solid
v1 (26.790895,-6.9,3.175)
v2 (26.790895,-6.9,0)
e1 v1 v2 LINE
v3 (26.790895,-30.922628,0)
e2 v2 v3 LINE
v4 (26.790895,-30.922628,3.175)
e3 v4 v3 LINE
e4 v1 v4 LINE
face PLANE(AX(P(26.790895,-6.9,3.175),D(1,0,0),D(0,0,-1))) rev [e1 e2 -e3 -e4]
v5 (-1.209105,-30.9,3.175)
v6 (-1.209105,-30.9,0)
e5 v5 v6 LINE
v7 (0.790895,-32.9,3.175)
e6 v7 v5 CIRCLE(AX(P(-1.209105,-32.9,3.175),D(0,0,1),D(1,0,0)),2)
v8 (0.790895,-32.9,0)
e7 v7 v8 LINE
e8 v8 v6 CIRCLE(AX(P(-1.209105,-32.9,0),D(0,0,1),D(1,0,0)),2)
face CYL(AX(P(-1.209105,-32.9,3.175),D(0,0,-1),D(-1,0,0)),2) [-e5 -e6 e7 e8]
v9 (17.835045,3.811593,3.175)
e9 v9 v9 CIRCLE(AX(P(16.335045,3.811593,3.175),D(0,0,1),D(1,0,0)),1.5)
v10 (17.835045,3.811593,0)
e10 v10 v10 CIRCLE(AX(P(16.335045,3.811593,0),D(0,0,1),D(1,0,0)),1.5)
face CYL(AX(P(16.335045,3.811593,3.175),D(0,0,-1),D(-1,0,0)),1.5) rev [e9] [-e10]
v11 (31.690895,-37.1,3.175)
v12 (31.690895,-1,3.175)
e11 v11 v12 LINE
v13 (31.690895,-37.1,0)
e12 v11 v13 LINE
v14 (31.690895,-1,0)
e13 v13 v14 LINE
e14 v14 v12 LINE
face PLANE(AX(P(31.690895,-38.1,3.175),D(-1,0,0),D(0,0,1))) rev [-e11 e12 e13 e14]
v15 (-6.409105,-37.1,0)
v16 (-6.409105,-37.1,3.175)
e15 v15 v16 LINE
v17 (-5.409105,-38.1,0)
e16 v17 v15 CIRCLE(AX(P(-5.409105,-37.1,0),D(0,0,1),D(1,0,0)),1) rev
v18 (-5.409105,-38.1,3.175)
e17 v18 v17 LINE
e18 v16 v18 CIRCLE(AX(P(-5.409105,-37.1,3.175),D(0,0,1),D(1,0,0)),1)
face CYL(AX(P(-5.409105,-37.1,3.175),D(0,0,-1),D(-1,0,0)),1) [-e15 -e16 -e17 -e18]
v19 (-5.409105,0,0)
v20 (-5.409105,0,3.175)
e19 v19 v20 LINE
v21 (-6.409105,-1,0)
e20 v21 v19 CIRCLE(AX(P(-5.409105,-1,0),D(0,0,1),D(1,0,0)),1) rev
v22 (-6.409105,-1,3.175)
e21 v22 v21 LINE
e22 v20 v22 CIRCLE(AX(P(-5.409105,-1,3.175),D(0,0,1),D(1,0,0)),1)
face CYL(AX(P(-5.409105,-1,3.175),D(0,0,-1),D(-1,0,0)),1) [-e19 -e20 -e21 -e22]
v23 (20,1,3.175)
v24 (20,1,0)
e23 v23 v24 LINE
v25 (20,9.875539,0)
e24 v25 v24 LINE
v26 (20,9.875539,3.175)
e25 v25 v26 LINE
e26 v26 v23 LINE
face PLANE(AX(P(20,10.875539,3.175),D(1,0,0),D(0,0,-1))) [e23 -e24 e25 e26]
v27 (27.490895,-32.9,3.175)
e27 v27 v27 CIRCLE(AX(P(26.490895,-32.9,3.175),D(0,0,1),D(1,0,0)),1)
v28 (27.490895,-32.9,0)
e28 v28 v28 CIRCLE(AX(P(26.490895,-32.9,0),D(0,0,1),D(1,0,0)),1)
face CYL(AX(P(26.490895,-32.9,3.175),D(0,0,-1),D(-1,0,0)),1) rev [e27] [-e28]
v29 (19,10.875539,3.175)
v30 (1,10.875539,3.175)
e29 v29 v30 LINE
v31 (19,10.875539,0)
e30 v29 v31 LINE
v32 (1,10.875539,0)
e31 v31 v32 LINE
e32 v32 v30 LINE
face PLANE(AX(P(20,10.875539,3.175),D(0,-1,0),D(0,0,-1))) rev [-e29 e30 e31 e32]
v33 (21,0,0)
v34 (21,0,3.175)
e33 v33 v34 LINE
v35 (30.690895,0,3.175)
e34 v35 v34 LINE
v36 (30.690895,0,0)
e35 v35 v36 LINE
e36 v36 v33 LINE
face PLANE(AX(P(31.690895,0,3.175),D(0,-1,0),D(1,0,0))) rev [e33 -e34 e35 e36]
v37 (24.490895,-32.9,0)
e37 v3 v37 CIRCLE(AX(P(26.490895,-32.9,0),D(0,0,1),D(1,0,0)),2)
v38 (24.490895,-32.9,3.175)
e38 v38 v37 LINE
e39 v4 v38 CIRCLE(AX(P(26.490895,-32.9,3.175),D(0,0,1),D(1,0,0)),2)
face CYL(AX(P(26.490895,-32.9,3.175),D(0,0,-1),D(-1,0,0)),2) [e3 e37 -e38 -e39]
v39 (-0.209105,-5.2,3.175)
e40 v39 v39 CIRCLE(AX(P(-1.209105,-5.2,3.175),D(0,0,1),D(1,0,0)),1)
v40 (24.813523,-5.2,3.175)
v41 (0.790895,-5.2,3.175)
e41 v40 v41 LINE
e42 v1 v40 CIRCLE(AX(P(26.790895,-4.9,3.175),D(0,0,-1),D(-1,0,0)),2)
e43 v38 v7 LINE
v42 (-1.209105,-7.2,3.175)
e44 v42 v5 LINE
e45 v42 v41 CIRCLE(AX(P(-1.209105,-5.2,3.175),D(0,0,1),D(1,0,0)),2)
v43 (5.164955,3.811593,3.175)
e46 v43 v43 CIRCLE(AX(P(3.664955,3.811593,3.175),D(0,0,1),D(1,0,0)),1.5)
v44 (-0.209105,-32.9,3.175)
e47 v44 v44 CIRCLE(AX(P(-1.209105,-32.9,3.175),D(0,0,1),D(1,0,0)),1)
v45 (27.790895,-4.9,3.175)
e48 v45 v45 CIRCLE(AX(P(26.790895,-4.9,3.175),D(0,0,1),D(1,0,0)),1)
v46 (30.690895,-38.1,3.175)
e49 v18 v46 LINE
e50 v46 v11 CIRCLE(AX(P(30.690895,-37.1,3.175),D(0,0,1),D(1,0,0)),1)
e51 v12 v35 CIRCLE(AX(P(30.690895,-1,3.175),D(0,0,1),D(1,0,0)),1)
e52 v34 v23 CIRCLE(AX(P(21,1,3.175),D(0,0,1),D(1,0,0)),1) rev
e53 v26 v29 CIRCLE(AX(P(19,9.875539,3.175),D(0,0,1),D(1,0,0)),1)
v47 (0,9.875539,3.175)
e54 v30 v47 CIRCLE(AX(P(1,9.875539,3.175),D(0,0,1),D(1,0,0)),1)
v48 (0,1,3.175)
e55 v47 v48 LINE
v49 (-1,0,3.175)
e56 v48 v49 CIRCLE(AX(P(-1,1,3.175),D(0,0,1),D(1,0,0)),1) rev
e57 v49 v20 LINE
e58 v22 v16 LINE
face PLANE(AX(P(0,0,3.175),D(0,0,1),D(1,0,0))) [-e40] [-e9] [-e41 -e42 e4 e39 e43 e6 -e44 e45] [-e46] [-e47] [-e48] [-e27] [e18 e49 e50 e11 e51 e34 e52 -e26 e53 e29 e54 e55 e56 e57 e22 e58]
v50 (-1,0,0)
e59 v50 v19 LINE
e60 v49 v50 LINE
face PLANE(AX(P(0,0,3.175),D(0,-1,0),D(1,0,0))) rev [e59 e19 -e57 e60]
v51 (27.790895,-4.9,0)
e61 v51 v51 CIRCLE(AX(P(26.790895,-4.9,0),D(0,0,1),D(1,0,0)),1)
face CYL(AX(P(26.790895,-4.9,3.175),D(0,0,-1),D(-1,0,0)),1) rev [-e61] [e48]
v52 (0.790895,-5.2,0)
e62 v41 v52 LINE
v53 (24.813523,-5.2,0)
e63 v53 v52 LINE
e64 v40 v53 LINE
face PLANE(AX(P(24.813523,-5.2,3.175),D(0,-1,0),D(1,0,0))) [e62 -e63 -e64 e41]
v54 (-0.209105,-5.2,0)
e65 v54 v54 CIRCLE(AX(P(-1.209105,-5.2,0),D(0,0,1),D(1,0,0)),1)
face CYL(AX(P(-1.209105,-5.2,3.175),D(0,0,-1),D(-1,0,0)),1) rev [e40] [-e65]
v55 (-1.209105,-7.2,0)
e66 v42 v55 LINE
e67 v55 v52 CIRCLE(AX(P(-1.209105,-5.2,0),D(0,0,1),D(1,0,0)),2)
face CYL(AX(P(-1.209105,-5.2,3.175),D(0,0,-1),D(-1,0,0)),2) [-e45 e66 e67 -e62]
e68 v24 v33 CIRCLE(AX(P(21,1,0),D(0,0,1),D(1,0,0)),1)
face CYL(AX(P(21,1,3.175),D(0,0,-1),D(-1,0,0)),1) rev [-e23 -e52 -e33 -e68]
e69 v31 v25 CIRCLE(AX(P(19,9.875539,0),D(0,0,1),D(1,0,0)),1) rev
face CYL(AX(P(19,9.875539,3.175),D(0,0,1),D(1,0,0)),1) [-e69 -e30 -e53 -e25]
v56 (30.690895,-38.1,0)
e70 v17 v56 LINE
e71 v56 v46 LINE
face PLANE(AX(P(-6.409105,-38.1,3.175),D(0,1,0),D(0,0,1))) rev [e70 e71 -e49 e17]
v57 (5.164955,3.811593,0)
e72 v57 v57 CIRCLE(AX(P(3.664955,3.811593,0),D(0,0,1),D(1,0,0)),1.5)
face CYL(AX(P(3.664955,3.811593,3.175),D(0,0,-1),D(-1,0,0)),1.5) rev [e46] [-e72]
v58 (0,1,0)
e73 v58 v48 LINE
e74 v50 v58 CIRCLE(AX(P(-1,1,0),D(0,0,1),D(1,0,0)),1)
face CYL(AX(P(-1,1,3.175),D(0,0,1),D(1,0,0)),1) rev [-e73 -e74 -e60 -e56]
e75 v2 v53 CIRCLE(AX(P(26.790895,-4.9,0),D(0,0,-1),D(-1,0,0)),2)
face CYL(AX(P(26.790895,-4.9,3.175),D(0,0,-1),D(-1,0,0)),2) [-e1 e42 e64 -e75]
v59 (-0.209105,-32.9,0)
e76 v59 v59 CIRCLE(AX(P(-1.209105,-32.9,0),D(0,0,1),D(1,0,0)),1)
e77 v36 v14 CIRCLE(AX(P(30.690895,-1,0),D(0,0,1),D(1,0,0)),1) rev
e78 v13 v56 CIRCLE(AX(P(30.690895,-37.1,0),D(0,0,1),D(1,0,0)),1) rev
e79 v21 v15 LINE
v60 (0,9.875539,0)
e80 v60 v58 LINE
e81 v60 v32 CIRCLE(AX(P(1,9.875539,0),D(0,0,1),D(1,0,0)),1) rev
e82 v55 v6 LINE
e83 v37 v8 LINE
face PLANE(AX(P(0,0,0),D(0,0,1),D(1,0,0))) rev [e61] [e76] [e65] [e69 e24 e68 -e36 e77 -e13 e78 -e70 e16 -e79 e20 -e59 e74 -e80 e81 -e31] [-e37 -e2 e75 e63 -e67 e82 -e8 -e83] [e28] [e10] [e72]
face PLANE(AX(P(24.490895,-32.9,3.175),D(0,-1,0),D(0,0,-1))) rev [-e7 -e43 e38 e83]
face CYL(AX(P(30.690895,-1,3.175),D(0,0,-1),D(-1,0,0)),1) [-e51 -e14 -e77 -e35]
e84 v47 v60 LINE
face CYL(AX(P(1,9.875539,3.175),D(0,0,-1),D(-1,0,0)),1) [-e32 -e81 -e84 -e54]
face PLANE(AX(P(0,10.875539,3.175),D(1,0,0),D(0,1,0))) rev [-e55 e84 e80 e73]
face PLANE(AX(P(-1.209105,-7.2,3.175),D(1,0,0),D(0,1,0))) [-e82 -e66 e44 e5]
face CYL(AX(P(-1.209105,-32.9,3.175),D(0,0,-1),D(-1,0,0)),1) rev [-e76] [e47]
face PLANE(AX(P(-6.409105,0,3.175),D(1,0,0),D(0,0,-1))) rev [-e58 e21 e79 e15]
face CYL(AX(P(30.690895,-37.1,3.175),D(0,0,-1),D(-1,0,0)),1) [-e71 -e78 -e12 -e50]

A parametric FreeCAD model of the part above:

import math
import FreeCAD as App
import Part
import Sketcher


def edges_at(feature, points):
    """Names of the edges that pass closest to the given points."""
    edges = feature.Shape.Edges
    near = lambda p: min(range(len(edges)), key=lambda i: edges[i].distToShape(Part.Vertex(*p))[0])
    return sorted({f"Edge{near(p) + 1}" for p in points})


def add_polygon(sketch, points):
    """Adds a closed chain of lines whose ends are joined by coincident constraints."""
    first, n = sketch.GeometryCount, len(points)
    for a, b in zip(points, points[1:] + points[:1]):
        sketch.addGeometry(Part.LineSegment(App.Vector(*a, 0), App.Vector(*b, 0)), False)
    for i in range(n):
        sketch.addConstraint(Sketcher.Constraint("Coincident", first + i, 2, first + (i + 1) % n, 1))

doc = App.newDocument("Part")
body = doc.addObject("PartDesign::Body", "Body")

sketch1 = body.newObject("Sketcher::SketchObject", "Sketch")
sketch1.AttachmentSupport = (doc.getObject("XY_Plane"), [""])
sketch1.MapMode = "FlatFace"
add_polygon(sketch1, [(31.690895, -38.1), (31.690895, 0), (20, 0), (20, 10.875539), (0, 10.875539), (0, 0), (-6.409105, 0), (-6.409105, -38.1)])
sketch1.addGeometry(Part.Circle(App.Vector(-1.209105, -32.9, 0), App.Vector(0, 0, 1), 1), False)
sketch1.addGeometry(Part.ArcOfCircle(Part.Circle(App.Vector(26.790895, -4.9, 0), App.Vector(0, 0, 1), 2), math.radians(-171.373073), math.radians(-90)), False)
sketch1.addGeometry(Part.LineSegment(App.Vector(26.790895, -6.9, 0), App.Vector(26.790895, -30.922628, 0)), False)
sketch1.addGeometry(Part.ArcOfCircle(Part.Circle(App.Vector(26.490895, -32.9, 0), App.Vector(0, 0, 1), 2), math.radians(81.373073), math.radians(180)), False)
sketch1.addGeometry(Part.LineSegment(App.Vector(24.490895, -32.9, 0), App.Vector(0.790895, -32.9, 0)), False)
sketch1.addGeometry(Part.ArcOfCircle(Part.Circle(App.Vector(-1.209105, -32.9, 0), App.Vector(0, 0, 1), 2), math.radians(0), math.radians(90)), False)
sketch1.addGeometry(Part.LineSegment(App.Vector(-1.209105, -30.9, 0), App.Vector(-1.209105, -7.2, 0)), False)
sketch1.addGeometry(Part.ArcOfCircle(Part.Circle(App.Vector(-1.209105, -5.2, 0), App.Vector(0, 0, 1), 2), math.radians(-90), math.radians(0)), False)
sketch1.addGeometry(Part.LineSegment(App.Vector(0.790895, -5.2, 0), App.Vector(24.813523, -5.2, 0)), False)
sketch1.addGeometry(Part.Circle(App.Vector(26.490895, -32.9, 0), App.Vector(0, 0, 1), 1), False)
sketch1.addGeometry(Part.Circle(App.Vector(-1.209105, -5.2, 0), App.Vector(0, 0, 1), 1), False)
sketch1.addGeometry(Part.Circle(App.Vector(3.664955, 3.811593, 0), App.Vector(0, 0, 1), 1.5), False)
sketch1.addGeometry(Part.Circle(App.Vector(26.790895, -4.9, 0), App.Vector(0, 0, 1), 1), False)
sketch1.addGeometry(Part.Circle(App.Vector(16.335045, 3.811593, 0), App.Vector(0, 0, 1), 1.5), False)
sketch1.addConstraint(Sketcher.Constraint("Coincident", 9, 2, 10, 1))
sketch1.addConstraint(Sketcher.Constraint("Coincident", 10, 2, 11, 1))
sketch1.addConstraint(Sketcher.Constraint("Coincident", 11, 2, 12, 1))
sketch1.addConstraint(Sketcher.Constraint("Coincident", 12, 2, 13, 1))
sketch1.addConstraint(Sketcher.Constraint("Coincident", 13, 2, 14, 1))
sketch1.addConstraint(Sketcher.Constraint("Coincident", 14, 2, 15, 1))
sketch1.addConstraint(Sketcher.Constraint("Coincident", 15, 2, 16, 1))
sketch1.addConstraint(Sketcher.Constraint("Coincident", 16, 2, 9, 1))
sketch1.addConstraint(Sketcher.Constraint("Vertical", 0))
sketch1.addConstraint(Sketcher.Constraint("Horizontal", 1))
sketch1.addConstraint(Sketcher.Constraint("Vertical", 2))
sketch1.addConstraint(Sketcher.Constraint("Horizontal", 3))
sketch1.addConstraint(Sketcher.Constraint("Vertical", 4))
sketch1.addConstraint(Sketcher.Constraint("Horizontal", 5))
sketch1.addConstraint(Sketcher.Constraint("Vertical", 6))
sketch1.addConstraint(Sketcher.Constraint("Horizontal", 7))
sketch1.addConstraint(Sketcher.Constraint("Vertical", 10))
sketch1.addConstraint(Sketcher.Constraint("Horizontal", 12))
sketch1.addConstraint(Sketcher.Constraint("Vertical", 14))
sketch1.addConstraint(Sketcher.Constraint("Horizontal", 16))
sketch1.addConstraint(Sketcher.Constraint("Coincident", 4, 2, -1, 1))
sketch1.addConstraint(Sketcher.Constraint("Coincident", 13, 3, 8, 3))
sketch1.addConstraint(Sketcher.Constraint("Coincident", 17, 3, 11, 3))
sketch1.addConstraint(Sketcher.Constraint("Coincident", 18, 3, 15, 3))
sketch1.addConstraint(Sketcher.Constraint("Coincident", 20, 3, 9, 3))
sketch1.addConstraint(Sketcher.Constraint("Equal", 9, 11))
sketch1.addConstraint(Sketcher.Constraint("Equal", 11, 13))
sketch1.addConstraint(Sketcher.Constraint("Equal", 13, 15))
sketch1.addConstraint(Sketcher.Constraint("Equal", 8, 17))
sketch1.addConstraint(Sketcher.Constraint("Equal", 17, 18))
sketch1.addConstraint(Sketcher.Constraint("Equal", 18, 20))
sketch1.addConstraint(Sketcher.Constraint("Equal", 19, 21))
sketch1.addConstraint(Sketcher.Constraint("PointOnObject", 0, 2, -1))
sketch1.addConstraint(Sketcher.Constraint("Horizontal", 8, 3, 11, 3))
sketch1.addConstraint(Sketcher.Constraint("Horizontal", 19, 3, 21, 3))
sketch1.addConstraint(Sketcher.Constraint("Horizontal", 17, 3, 11, 2))
sketch1.addConstraint(Sketcher.Constraint("Horizontal", 18, 3, 15, 2))
sketch1.addConstraint(Sketcher.Constraint("Vertical", 13, 3, 15, 3))
sketch1.addConstraint(Sketcher.Constraint("Vertical", 20, 3, 9, 2))
sketch1.addConstraint(Sketcher.Constraint("Vertical", 18, 3, 13, 2))
sketch1.addConstraint(Sketcher.Constraint("Equal", 7, 0))
sketch1.addConstraint(Sketcher.Constraint("Equal", 16, 10))
sketch1.addConstraint(Sketcher.Constraint("Equal", 12, 14))
sketch1.addConstraint(Sketcher.Constraint("Diameter", 8, 2.0))
sketch1.addConstraint(Sketcher.Constraint("Diameter", 19, 3.0))
sketch1.addConstraint(Sketcher.Constraint("Radius", 9, 2.0))
sketch1.addConstraint(Sketcher.Constraint("DistanceX", 3, 2, 3, 1, 20.0))
sketch1.addConstraint(Sketcher.Constraint("DistanceX", 7, 1, 7, 2, 38.1))
sketch1.addConstraint(Sketcher.Constraint("DistanceX", 12, 2, 12, 1, 23.7))
sketch1.addConstraint(Sketcher.Constraint("DistanceX", 8, 3, 9, 3, 28.0))
sketch1.addConstraint(Sketcher.Constraint("DistanceY", 8, 3, -1, 1, 32.9))
sketch1.addConstraint(Sketcher.Constraint("DistanceX", 20, 3, 0, 2, 4.9))
sketch1.addConstraint(Sketcher.Constraint("DistanceY", 2, 1, 2, 2, 10.875539))
sketch1.addConstraint(Sketcher.Constraint("DistanceX", 1, 2, 1, 1, 11.690895))
sketch1.addConstraint(Sketcher.Constraint("DistanceX", 15, 3, 19, 3, 4.874061))
sketch1.addConstraint(Sketcher.Constraint("DistanceX", 19, 3, 21, 3, 12.67009))
sketch1.addConstraint(Sketcher.Constraint("DistanceY", -1, 1, 19, 3, 3.811593))
pad1 = body.newObject("PartDesign::Pad", "Pad")
pad1.Profile = sketch1
pad1.Length = 3.175
doc.recompute()

fillet = body.newObject("PartDesign::Fillet", "Fillet")
fillet.Base = (pad1, edges_at(pad1, [
    (20, 10.876, 1.587),
    (20, 0, 1.587),
    (31.691, 0, 1.587),
    (31.691, -38.1, 1.587),
    (-6.409, -38.1, 1.587),
    (-6.409, 0, 1.587),
    (0, 0, 1.587),
    (0, 10.876, 1.587),
]))
fillet.Radius = 1

doc.recompute()
